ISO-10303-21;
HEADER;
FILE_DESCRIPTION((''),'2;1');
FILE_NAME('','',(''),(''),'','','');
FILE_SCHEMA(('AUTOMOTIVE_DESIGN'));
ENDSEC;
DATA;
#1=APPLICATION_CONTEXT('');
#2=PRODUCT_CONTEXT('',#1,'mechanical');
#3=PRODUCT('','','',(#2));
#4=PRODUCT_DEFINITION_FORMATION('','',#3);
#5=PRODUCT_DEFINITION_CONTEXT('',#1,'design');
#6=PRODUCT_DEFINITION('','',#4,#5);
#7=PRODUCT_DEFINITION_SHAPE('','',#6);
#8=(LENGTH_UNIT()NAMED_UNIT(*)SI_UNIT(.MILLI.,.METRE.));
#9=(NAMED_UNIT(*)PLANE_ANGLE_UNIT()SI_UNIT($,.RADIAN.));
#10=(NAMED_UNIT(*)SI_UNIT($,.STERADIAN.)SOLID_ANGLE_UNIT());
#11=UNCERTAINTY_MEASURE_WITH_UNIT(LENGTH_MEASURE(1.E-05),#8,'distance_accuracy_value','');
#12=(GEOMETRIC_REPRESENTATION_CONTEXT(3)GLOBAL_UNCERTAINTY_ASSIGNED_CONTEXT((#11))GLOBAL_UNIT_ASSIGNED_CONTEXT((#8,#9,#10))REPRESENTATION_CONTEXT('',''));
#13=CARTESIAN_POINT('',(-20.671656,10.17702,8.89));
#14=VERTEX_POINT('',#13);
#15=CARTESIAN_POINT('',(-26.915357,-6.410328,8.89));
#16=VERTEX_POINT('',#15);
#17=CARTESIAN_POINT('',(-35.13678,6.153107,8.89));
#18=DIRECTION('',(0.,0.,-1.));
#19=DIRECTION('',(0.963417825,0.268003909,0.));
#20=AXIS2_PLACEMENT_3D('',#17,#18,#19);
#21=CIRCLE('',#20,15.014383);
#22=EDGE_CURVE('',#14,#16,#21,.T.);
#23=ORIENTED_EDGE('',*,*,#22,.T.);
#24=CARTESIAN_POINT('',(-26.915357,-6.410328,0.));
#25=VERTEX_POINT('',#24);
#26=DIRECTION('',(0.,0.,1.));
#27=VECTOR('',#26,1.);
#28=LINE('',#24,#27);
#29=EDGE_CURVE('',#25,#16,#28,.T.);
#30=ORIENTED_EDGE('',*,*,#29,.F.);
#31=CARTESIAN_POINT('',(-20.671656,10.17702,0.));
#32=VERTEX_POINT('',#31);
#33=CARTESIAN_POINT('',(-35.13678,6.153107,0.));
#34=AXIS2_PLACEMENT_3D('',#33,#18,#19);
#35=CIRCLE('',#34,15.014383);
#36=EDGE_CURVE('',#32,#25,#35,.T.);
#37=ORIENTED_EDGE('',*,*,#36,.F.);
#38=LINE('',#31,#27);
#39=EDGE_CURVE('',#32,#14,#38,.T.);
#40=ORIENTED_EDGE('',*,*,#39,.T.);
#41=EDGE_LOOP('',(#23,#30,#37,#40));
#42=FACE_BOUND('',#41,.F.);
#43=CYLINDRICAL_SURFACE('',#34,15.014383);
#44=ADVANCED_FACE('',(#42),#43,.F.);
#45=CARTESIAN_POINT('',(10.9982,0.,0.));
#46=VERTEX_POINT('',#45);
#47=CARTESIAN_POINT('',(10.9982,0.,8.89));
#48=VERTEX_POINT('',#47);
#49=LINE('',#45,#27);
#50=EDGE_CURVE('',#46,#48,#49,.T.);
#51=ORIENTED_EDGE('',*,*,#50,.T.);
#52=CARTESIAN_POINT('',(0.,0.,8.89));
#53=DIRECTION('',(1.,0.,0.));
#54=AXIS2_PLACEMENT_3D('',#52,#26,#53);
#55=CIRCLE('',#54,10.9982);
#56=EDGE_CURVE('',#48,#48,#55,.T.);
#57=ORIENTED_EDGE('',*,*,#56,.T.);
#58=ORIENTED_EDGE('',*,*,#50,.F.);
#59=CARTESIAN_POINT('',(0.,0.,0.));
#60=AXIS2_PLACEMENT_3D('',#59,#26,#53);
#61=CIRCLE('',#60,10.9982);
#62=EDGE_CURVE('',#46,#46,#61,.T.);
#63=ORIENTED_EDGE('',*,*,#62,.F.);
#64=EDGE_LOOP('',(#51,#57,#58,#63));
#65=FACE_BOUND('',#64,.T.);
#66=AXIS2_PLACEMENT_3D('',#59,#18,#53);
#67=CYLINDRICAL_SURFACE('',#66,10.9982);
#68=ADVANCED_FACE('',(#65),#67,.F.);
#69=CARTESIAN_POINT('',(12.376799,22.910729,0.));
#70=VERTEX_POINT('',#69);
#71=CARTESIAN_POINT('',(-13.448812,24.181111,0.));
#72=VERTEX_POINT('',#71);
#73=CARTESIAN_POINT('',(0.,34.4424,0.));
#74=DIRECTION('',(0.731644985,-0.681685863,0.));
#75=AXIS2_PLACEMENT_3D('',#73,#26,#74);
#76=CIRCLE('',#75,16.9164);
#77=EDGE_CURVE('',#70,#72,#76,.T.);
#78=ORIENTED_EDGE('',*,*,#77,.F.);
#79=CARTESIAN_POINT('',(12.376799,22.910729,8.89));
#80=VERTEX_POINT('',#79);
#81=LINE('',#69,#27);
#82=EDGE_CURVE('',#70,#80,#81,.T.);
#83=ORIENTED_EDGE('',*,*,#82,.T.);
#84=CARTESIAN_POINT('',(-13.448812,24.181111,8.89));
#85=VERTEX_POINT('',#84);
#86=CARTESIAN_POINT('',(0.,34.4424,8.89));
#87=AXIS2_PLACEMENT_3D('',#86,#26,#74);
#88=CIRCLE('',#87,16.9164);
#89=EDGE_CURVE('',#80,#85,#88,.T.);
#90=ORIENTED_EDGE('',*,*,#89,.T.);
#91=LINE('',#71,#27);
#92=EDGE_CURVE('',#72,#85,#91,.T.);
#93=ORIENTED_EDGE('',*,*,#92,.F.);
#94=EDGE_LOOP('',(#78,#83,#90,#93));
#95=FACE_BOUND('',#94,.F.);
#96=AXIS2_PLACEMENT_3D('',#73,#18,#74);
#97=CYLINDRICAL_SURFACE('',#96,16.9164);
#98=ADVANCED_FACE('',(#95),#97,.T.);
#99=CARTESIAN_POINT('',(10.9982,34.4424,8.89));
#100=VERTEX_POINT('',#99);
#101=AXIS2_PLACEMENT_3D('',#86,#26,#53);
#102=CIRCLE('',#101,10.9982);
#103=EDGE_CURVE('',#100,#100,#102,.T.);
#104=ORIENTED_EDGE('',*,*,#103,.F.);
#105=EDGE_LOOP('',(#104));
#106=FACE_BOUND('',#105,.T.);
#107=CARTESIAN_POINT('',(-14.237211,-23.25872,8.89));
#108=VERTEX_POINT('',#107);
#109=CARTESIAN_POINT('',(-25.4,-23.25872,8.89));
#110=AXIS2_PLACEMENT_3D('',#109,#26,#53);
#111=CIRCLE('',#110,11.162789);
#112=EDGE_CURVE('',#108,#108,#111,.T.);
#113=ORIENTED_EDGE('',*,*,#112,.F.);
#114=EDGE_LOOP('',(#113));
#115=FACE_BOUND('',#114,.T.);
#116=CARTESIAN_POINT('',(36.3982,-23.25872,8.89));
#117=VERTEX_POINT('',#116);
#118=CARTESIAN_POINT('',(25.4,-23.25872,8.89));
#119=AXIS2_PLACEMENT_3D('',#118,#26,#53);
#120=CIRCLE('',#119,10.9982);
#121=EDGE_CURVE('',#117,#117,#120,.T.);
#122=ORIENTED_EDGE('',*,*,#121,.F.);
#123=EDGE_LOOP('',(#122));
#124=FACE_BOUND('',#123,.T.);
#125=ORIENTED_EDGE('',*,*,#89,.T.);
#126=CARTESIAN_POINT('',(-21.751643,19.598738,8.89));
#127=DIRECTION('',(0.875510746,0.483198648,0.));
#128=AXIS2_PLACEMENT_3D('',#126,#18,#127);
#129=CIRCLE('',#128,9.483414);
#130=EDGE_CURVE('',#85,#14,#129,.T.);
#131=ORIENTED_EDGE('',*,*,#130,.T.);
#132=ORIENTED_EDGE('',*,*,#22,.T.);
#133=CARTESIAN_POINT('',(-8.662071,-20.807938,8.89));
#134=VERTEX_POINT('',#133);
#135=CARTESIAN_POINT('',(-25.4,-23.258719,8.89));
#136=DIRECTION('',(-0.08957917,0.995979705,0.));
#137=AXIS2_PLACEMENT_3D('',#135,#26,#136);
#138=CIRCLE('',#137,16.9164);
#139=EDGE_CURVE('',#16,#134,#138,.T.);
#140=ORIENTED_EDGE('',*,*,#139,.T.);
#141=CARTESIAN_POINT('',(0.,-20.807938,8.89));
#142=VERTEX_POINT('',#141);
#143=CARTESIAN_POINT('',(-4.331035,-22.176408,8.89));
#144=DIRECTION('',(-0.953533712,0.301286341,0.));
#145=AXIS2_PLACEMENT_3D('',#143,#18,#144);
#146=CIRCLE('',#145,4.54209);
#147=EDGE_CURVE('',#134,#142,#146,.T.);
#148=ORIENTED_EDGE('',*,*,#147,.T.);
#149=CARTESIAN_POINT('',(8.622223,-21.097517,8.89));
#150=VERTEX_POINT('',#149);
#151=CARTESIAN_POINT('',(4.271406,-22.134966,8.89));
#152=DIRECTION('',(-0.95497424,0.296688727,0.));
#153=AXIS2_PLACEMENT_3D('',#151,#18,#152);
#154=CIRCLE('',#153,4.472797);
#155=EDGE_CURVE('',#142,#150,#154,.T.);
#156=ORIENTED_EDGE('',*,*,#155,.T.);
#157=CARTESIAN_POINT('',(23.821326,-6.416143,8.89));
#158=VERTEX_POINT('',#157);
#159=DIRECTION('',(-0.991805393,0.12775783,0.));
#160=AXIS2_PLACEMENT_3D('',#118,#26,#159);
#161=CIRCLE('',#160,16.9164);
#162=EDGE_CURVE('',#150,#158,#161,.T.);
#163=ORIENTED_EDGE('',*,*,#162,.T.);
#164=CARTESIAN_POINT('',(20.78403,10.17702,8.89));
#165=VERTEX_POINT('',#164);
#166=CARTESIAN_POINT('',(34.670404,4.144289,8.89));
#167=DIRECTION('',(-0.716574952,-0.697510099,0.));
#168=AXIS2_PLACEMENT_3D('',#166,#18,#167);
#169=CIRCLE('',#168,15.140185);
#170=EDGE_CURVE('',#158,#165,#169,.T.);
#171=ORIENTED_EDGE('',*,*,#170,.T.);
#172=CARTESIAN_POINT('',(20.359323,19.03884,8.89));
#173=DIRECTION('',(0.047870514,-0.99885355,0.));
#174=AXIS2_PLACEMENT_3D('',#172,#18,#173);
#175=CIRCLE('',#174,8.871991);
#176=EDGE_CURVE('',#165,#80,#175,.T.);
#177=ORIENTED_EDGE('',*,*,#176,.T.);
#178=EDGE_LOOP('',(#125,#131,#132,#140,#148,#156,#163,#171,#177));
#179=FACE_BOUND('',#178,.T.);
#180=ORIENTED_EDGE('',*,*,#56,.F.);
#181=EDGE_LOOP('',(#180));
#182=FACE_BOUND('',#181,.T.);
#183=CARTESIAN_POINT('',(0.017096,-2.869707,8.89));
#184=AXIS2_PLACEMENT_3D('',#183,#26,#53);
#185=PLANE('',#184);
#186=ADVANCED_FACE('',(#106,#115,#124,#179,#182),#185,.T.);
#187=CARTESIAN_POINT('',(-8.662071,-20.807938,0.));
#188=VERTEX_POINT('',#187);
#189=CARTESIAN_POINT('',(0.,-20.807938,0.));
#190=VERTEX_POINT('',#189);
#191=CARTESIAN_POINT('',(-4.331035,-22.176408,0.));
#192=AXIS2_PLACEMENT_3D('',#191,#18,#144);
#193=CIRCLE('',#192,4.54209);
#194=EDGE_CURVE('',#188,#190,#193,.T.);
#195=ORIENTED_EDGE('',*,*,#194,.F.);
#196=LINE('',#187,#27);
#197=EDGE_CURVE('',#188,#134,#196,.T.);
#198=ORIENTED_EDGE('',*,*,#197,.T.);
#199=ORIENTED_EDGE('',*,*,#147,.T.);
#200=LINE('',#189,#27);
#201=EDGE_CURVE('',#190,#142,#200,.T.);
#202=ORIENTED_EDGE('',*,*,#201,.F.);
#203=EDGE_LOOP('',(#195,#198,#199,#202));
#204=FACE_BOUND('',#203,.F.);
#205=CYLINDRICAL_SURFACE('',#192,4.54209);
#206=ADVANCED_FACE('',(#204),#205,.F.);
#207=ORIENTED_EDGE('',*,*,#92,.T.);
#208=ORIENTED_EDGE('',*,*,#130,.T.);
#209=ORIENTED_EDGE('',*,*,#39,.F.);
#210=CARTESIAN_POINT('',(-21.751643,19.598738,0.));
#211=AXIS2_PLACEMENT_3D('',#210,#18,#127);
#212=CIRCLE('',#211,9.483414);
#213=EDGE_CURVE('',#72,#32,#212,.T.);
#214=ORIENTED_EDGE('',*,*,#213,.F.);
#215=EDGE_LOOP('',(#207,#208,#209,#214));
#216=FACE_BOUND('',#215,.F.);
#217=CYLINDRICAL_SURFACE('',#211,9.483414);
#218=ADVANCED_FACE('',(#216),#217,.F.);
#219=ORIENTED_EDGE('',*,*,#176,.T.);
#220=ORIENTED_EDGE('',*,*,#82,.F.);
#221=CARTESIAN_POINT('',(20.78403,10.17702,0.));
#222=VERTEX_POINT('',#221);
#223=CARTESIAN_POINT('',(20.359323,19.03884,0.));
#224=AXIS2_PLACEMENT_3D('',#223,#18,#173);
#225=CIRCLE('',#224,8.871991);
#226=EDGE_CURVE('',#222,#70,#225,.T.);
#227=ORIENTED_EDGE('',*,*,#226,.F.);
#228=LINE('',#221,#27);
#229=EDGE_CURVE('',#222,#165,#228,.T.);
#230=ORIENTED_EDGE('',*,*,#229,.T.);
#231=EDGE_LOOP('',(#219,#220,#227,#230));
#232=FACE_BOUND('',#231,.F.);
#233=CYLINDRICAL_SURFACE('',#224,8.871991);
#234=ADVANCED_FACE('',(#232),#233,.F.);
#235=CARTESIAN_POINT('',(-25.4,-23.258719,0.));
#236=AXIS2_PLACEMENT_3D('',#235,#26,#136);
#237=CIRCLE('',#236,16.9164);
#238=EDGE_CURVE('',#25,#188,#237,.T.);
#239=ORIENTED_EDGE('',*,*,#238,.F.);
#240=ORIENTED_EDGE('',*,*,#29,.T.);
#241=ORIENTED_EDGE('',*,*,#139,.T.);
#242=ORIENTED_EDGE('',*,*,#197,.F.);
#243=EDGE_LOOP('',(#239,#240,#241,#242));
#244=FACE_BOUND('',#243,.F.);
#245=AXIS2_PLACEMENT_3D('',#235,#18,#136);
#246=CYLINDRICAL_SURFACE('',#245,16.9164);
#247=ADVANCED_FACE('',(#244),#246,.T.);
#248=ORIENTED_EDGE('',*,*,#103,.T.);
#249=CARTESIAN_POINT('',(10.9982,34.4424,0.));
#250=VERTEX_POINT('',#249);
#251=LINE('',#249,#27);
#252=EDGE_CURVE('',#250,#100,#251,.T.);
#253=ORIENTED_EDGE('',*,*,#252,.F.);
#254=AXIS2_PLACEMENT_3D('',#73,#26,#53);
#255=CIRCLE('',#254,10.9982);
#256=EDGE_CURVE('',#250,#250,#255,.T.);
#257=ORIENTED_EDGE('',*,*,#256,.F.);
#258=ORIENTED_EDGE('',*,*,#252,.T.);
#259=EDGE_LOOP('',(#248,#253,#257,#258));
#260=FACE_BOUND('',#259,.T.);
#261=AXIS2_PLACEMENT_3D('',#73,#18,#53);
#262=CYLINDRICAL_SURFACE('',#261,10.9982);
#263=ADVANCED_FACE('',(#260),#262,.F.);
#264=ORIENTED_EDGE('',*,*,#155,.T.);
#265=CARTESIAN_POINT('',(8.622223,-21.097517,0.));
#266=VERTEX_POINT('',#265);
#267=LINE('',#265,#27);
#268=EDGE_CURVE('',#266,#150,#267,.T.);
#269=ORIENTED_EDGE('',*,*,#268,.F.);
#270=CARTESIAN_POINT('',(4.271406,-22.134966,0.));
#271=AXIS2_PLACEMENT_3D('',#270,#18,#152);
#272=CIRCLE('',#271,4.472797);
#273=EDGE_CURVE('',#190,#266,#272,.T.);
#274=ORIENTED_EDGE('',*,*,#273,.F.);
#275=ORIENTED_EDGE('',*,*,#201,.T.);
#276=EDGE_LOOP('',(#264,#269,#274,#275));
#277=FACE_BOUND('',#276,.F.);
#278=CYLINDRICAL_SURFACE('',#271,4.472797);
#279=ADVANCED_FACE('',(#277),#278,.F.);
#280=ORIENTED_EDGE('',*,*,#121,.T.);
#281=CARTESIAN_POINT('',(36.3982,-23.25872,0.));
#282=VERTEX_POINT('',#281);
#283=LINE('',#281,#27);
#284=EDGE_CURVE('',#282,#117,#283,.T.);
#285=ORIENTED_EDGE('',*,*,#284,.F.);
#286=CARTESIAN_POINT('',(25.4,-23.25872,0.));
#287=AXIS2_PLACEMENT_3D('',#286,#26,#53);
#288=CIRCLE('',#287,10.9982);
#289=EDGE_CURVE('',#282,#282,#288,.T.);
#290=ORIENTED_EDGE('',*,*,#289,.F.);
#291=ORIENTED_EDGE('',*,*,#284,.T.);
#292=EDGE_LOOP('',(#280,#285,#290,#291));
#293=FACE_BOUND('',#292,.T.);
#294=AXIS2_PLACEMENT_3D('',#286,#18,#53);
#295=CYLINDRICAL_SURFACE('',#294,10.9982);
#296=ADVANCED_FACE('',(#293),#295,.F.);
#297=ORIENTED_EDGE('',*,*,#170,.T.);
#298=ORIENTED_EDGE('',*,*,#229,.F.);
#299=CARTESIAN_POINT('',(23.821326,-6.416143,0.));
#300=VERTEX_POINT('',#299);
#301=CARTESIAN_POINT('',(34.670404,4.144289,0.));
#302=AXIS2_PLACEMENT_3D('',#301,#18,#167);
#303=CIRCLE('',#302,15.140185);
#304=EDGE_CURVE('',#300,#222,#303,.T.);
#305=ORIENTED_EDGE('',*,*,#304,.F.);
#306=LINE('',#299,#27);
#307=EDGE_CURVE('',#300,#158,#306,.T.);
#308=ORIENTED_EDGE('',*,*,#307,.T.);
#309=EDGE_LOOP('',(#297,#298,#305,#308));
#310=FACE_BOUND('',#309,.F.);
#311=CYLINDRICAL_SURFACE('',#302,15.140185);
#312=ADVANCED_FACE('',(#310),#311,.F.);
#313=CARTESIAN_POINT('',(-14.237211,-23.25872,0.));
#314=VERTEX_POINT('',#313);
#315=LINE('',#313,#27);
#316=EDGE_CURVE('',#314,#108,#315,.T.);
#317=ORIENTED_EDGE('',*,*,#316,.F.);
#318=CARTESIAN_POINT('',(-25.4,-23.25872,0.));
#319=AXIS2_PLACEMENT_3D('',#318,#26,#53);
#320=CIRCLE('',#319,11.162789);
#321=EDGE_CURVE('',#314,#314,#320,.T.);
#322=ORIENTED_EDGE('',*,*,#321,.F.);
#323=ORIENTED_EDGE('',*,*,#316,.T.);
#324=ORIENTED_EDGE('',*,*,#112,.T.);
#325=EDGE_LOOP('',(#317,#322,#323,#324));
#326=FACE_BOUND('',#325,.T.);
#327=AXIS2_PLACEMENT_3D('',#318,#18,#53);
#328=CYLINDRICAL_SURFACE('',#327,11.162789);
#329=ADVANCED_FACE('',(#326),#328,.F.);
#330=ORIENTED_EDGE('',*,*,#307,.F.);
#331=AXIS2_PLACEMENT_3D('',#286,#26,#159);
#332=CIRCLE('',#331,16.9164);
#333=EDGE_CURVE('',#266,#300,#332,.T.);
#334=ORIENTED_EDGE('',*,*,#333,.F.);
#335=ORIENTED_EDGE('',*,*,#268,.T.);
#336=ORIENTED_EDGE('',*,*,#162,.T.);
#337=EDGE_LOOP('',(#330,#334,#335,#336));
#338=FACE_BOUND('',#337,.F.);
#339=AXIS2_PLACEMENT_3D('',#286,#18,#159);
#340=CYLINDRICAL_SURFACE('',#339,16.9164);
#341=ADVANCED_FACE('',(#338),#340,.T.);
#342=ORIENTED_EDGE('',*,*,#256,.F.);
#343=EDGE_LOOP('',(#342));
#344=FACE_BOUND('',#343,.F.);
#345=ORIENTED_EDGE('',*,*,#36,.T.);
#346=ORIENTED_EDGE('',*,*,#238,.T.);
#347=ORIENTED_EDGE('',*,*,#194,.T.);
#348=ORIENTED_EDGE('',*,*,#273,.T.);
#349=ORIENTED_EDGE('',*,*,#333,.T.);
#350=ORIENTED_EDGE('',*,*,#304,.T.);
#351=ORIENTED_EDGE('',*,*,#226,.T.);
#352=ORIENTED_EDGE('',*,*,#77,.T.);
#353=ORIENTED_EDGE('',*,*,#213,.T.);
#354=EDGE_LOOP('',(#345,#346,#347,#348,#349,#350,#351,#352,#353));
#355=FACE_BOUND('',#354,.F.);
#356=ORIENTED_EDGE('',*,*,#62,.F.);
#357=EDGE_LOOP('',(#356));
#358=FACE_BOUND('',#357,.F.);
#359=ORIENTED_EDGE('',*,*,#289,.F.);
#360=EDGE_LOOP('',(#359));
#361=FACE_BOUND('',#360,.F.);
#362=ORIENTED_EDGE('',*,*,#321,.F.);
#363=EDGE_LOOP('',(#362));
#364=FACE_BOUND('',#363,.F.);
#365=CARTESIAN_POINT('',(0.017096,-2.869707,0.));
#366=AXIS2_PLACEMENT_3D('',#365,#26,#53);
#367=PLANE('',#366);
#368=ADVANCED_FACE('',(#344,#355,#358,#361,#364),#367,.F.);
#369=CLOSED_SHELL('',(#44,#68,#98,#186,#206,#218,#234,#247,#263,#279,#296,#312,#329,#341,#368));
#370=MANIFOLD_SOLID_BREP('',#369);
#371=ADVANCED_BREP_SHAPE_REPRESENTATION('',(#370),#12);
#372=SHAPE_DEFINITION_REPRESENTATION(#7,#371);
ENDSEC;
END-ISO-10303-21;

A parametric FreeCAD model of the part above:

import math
import FreeCAD as App
import Part
import Sketcher

V = App.Vector
Q = App.Units.Quantity

doc = App.newDocument("Part")
body = doc.addObject("PartDesign::Body", "Body")

sketch1 = doc.addObject("Sketcher::SketchObject", "Sketch")
body.addObject(sketch1)
sketch1.AttachmentSupport = (doc.XY_Plane, [""])
sketch1.MapMode = "FlatFace"
sketch1.addGeometry(Part.ArcOfCircle(Part.Circle(V(20.359323, 19.03884, 0), V(0, 0, 1), 8.871991), math.radians(154.124493), math.radians(272.743827)), False)
sketch1.addGeometry(Part.ArcOfCircle(Part.Circle(V(0, 34.4424, 0), V(0, 0, 1), 16.9164), math.radians(-42.975523), math.radians(217.343215)), False)
sketch1.addGeometry(Part.ArcOfCircle(Part.Circle(V(-21.751643, 19.598738, 0), V(0, 0, 1), 9.483414), math.radians(-83.460875), math.radians(28.89452)), False)
sketch1.addGeometry(Part.ArcOfCircle(Part.Circle(V(-35.13678, 6.153107, 0), V(0, 0, 1), 15.014383), math.radians(-56.799548), math.radians(15.545522)), False)
sketch1.addGeometry(Part.ArcOfCircle(Part.Circle(V(-25.4, -23.258719, 0), V(0, 0, 1), 16.9164), math.radians(95.139398), math.radians(368.330101)), False)
sketch1.addGeometry(Part.ArcOfCircle(Part.Circle(V(-4.331035, -22.176408, 0), V(0, 0, 1), 4.54209), math.radians(17.53488), math.radians(162.46512)), False)
sketch1.addGeometry(Part.ArcOfCircle(Part.Circle(V(4.271406, -22.134966, 0), V(0, 0, 1), 4.472797), math.radians(13.411695), math.radians(162.741171)), False)
sketch1.addGeometry(Part.ArcOfCircle(Part.Circle(V(25.4, -23.25872, 0), V(0, 0, 1), 16.9164), math.radians(172.659955), math.radians(455.354754)), False)
sketch1.addGeometry(Part.ArcOfCircle(Part.Circle(V(34.670404, 4.144289, 0), V(0, 0, 1), 15.140185), math.radians(156.518172), math.radians(224.227579)), False)
sketch1.addGeometry(Part.Circle(V(-25.4, -23.25872, 0), V(0, 0, 1), 11.162789), False)
sketch1.addGeometry(Part.Circle(V(25.4, -23.25872, 0), V(0, 0, 1), 10.9982), False)
sketch1.addGeometry(Part.Circle(V(0, 0, 0), V(0, 0, 1), 10.9982), False)
sketch1.addGeometry(Part.Circle(V(0, 34.4424, 0), V(0, 0, 1), 10.9982), False)
sketch1.addConstraint(Sketcher.Constraint("Coincident", 0, 1, 1, 1))
sketch1.addConstraint(Sketcher.Constraint("Coincident", 1, 2, 2, 2))
sketch1.addConstraint(Sketcher.Constraint("Coincident", 2, 1, 3, 2))
sketch1.addConstraint(Sketcher.Constraint("Coincident", 3, 1, 4, 1))
sketch1.addConstraint(Sketcher.Constraint("Coincident", 4, 2, 5, 2))
sketch1.addConstraint(Sketcher.Constraint("Coincident", 5, 1, 6, 2))
sketch1.addConstraint(Sketcher.Constraint("Coincident", 6, 1, 7, 1))
sketch1.addConstraint(Sketcher.Constraint("Coincident", 7, 2, 8, 2))
sketch1.addConstraint(Sketcher.Constraint("Coincident", 8, 1, 0, 2))
sketch1.addConstraint(Sketcher.Constraint("Coincident", 11, 3, -1, 1))
sketch1.addConstraint(Sketcher.Constraint("Coincident", 9, 3, 4, 3))
sketch1.addConstraint(Sketcher.Constraint("Coincident", 10, 3, 7, 3))
sketch1.addConstraint(Sketcher.Constraint("Coincident", 12, 3, 1, 3))
sketch1.addConstraint(Sketcher.Constraint("Equal", 1, 4))
sketch1.addConstraint(Sketcher.Constraint("Equal", 4, 7))
sketch1.addConstraint(Sketcher.Constraint("Equal", 10, 11))
sketch1.addConstraint(Sketcher.Constraint("Equal", 11, 12))
sketch1.addConstraint(Sketcher.Constraint("Symmetric", 4, 3, 7, 3, -2))
sketch1.addConstraint(Sketcher.Constraint("PointOnObject", 1, 3, -2))
sketch1.addConstraint(Sketcher.Constraint("PointOnObject", 5, 1, -2))
sketch1.addConstraint(Sketcher.Constraint("Horizontal", 4, 2, 5, 1))
sketch1.addConstraint(Sketcher.Constraint("Horizontal", 2, 1, 8, 1))
sketch1.addConstraint(Sketcher.Constraint("Diameter", 10, Q("0.866 in")))
sketch1.addConstraint(Sketcher.Constraint("DistanceX", 4, 3, -1, 1, Q("1 in")))
sketch1.addConstraint(Sketcher.Constraint("Radius", 1, Q("0.666 in")))
sketch1.addConstraint(Sketcher.Constraint("Diameter", 9, Q("22.325578 mm")))
sketch1.addConstraint(Sketcher.Constraint("DistanceY", -1, 1, 1, 3, Q("1.356 in")))
sketch1.addConstraint(Sketcher.Constraint("Radius", 0, Q("8.871991 mm")))
sketch1.addConstraint(Sketcher.Constraint("Radius", 5, Q("4.54209 mm")))
sketch1.addConstraint(Sketcher.Constraint("Radius", 2, Q("9.483414 mm")))
sketch1.addConstraint(Sketcher.Constraint("Radius", 3, Q("15.014383 mm")))
sketch1.addConstraint(Sketcher.Constraint("Radius", 6, Q("4.472797 mm")))
sketch1.addConstraint(Sketcher.Constraint("Radius", 8, Q("15.140185 mm")))
sketch1.addConstraint(Sketcher.Constraint("DistanceX", -1, 1, 0, 1, Q("12.376799 mm")))
sketch1.addConstraint(Sketcher.Constraint("DistanceY", 0, 3, 2, 3, Q("0.559899 mm")))
sketch1.addConstraint(Sketcher.Constraint("DistanceX", 3, 1, 2, 1, Q("6.243701 mm")))
sketch1.addConstraint(Sketcher.Constraint("DistanceY", -1, 1, 0, 3, Q("19.03884 mm")))
sketch1.addConstraint(Sketcher.Constraint("DistanceX", 3, 3, -1, 1, Q("35.13678 mm")))
sketch1.addConstraint(Sketcher.Constraint("DistanceY", 4, 3, -1, 1, Q("23.258719 mm")))
sketch1.addConstraint(Sketcher.Constraint("DistanceY", -1, 1, 8, 3, Q("4.144289 mm")))
sketch1.addConstraint(Sketcher.Constraint("DistanceY", -1, 1, 1, 2, Q("24.181111 mm")))
sketch1.addConstraint(Sketcher.Constraint("DistanceX", 4, 2, -1, 1, Q("8.662071 mm")))
sketch1.addConstraint(Sketcher.Constraint("DistanceX", 5, 3, 6, 3, Q("8.602441 mm")))
pad1 = doc.addObject("PartDesign::Pad", "Pad")
body.addObject(pad1)
pad1.Profile = sketch1
pad1.Length = Q("0.35 in")

doc.recompute()
